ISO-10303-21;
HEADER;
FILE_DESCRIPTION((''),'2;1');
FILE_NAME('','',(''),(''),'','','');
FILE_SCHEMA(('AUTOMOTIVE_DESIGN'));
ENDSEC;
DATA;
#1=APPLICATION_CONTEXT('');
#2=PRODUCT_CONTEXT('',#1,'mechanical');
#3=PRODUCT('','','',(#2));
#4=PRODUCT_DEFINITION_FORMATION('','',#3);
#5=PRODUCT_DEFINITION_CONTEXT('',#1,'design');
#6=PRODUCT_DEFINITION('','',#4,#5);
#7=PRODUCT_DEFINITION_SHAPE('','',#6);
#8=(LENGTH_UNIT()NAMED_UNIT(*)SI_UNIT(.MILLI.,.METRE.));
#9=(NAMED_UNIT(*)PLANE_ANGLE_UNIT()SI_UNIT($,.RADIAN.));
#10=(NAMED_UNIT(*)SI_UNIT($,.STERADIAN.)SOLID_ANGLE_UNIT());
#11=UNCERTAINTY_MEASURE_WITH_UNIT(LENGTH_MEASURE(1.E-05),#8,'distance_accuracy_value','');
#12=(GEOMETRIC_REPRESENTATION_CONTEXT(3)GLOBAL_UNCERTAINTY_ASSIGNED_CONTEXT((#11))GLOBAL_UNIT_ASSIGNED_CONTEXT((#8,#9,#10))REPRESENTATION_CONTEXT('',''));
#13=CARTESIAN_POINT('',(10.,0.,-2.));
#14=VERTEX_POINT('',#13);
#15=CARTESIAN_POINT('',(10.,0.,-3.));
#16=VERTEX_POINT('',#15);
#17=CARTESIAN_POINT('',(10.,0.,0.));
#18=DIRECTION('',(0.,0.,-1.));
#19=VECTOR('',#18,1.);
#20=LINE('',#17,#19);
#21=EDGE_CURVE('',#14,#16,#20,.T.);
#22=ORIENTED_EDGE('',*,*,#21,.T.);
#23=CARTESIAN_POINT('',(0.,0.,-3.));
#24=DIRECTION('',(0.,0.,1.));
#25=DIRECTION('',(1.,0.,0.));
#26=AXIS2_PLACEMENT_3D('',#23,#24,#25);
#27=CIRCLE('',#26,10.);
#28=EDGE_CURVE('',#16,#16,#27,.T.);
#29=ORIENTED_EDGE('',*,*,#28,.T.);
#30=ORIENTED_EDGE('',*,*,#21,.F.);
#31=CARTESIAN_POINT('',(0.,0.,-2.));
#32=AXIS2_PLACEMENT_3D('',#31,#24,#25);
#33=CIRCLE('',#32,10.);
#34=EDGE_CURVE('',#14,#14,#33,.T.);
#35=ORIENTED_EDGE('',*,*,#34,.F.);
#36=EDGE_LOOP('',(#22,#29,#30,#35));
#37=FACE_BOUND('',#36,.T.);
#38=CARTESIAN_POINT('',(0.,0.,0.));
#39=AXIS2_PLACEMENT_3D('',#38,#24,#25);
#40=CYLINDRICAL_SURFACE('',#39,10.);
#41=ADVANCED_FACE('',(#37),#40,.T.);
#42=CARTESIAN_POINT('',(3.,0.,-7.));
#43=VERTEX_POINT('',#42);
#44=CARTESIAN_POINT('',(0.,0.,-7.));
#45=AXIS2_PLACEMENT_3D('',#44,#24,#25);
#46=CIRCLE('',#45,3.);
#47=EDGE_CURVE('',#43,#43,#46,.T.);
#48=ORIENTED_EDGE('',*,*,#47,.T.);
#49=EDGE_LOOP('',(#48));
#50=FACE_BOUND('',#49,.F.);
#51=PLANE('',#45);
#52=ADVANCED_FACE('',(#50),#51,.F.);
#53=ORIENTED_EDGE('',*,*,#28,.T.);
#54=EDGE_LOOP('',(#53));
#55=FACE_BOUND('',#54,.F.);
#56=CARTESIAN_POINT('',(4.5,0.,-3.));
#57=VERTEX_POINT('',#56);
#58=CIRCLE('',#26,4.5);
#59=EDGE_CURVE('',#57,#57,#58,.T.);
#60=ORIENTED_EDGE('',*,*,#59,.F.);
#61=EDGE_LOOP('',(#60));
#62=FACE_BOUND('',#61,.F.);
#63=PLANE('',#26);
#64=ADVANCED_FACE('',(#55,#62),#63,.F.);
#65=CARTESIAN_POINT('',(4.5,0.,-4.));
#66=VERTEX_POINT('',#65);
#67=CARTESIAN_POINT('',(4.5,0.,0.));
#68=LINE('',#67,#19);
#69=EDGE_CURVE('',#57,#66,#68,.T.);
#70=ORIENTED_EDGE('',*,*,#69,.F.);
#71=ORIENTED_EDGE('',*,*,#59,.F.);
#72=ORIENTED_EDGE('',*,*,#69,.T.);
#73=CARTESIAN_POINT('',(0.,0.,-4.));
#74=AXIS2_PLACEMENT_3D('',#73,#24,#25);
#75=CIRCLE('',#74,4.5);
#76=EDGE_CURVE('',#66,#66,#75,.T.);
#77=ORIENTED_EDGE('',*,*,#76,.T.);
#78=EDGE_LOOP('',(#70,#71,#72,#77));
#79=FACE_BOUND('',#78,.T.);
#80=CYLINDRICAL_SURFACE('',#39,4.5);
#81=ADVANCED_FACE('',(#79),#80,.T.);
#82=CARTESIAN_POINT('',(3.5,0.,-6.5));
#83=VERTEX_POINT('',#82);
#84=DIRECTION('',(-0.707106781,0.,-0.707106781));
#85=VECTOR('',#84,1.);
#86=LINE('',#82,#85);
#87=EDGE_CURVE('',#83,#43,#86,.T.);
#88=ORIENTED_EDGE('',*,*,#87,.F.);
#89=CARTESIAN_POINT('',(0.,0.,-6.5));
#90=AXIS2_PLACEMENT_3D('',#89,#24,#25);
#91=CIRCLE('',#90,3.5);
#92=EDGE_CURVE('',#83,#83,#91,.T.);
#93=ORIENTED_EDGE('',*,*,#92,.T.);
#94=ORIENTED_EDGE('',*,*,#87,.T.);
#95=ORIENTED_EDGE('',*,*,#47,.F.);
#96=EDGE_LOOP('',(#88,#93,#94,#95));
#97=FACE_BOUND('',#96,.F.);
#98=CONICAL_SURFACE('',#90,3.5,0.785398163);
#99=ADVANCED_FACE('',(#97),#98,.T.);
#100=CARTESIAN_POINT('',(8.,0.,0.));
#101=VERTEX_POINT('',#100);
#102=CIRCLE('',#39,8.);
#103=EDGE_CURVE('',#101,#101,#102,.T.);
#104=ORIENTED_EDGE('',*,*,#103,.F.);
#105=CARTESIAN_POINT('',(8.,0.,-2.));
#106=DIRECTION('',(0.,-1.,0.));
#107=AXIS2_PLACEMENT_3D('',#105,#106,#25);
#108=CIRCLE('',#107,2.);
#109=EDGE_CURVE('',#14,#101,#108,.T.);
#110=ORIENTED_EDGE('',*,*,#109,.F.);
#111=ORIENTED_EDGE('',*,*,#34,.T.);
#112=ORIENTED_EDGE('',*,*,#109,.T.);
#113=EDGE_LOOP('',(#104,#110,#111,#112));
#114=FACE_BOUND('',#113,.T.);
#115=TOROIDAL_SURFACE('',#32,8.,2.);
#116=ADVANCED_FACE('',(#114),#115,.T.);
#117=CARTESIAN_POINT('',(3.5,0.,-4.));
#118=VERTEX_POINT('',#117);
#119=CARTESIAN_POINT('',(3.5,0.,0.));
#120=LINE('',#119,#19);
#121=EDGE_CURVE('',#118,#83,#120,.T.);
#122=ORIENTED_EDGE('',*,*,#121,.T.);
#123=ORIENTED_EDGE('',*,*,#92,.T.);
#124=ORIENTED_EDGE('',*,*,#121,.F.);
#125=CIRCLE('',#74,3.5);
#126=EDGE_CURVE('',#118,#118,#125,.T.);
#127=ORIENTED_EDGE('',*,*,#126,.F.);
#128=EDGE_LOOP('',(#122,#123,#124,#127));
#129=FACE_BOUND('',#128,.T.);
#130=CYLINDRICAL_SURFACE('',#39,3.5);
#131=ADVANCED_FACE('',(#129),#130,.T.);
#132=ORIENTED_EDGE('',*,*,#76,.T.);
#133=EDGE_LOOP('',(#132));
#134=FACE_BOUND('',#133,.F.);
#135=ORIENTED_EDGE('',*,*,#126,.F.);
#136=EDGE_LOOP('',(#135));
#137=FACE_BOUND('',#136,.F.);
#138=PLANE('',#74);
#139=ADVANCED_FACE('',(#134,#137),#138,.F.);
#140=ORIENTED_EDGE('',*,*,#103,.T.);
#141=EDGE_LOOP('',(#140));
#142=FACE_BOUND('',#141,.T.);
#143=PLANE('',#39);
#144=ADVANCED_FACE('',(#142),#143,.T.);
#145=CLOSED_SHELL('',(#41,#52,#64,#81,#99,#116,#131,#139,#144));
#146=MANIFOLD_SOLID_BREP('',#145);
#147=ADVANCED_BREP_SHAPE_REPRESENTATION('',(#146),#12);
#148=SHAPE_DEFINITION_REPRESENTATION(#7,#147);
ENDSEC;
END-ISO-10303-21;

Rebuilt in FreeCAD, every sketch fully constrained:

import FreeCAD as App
import Part
import Sketcher
Q = App.Units.Quantity


def edges_at(feature, points):
    """Names of the edges that pass closest to the given points."""
    edges = feature.Shape.Edges
    near = lambda p: min(range(len(edges)), key=lambda i: edges[i].distToShape(Part.Vertex(*p))[0])
    return sorted({f"Edge{near(p) + 1}" for p in points})

doc = App.newDocument("Part")
body = doc.addObject("PartDesign::Body", "Body")

# Sketch on XY plane
sketch1 = doc.addObject("Sketcher::SketchObject", "Sketch")
body.addObject(sketch1)
sketch1.AttachmentSupport = (doc.XY_Plane, [""])
sketch1.MapMode = "FlatFace"
sketch1.addGeometry(Part.Circle(App.Vector(0, 0, 0), App.Vector(0, 0, 1), 3.5), False)
sketch1.addConstraint([
    Sketcher.Constraint("Coincident", 0, 3, -1, 1),
    Sketcher.Constraint("Diameter", 0, Q("7 mm")),
])
pad1 = doc.addObject("PartDesign::Pad", "Pad")
body.addObject(pad1)
pad1.Profile = sketch1
pad1.Length = 7
pad1.Reversed = True

# Sketch on XY plane
sketch2 = doc.addObject("Sketcher::SketchObject", "Sketch001")
body.addObject(sketch2)
sketch2.AttachmentSupport = (doc.XY_Plane, [""])
sketch2.MapMode = "FlatFace"
sketch2.addGeometry([
    Part.Circle(App.Vector(0, 0, 0), App.Vector(0, 0, 1), 4.5),
    Part.Circle(App.Vector(0, 0, 0), App.Vector(0, 0, 1), 3.5),
], False)
sketch2.addConstraint([
    Sketcher.Constraint("Coincident", 0, 3, -1, 1),
    Sketcher.Constraint("Coincident", 1, 3, -1, 1),
    Sketcher.Constraint("Diameter", 0, Q("9 mm")),
    Sketcher.Constraint("Diameter", 1, Q("7 mm")),
])
pad2 = doc.addObject("PartDesign::Pad", "Pad001")
body.addObject(pad2)
pad2.Profile = sketch2
pad2.Length = 4
pad2.Reversed = True

# Sketch on XY plane
sketch3 = doc.addObject("Sketcher::SketchObject", "Sketch002")
body.addObject(sketch3)
sketch3.AttachmentSupport = (doc.XY_Plane, [""])
sketch3.MapMode = "FlatFace"
sketch3.addGeometry([
    Part.Circle(App.Vector(0, 0, 0), App.Vector(0, 0, 1), 10),
    Part.Circle(App.Vector(0, 0, 0), App.Vector(0, 0, 1), 4.5),
], False)
sketch3.addConstraint([
    Sketcher.Constraint("Coincident", 0, 3, -1, 1),
    Sketcher.Constraint("Coincident", 1, 3, -1, 1),
    Sketcher.Constraint("Diameter", 0, Q("20 mm")),
    Sketcher.Constraint("Diameter", 1, Q("9 mm")),
])
pad3 = doc.addObject("PartDesign::Pad", "Pad002")
body.addObject(pad3)
pad3.Profile = sketch3
pad3.Length = 3
pad3.Reversed = True
doc.recompute()

fillet = doc.addObject("PartDesign::Fillet", "Fillet")
body.addObject(fillet)
fillet.Base = (pad3, edges_at(pad3, [(-10, 0, 0)]))
fillet.Radius = 2
doc.recompute()

chamfer = doc.addObject("PartDesign::Chamfer", "Chamfer")
body.addObject(chamfer)
chamfer.Base = (fillet, edges_at(fillet, [(-3.5, 0, -7)]))
chamfer.Size = 0.5

doc.recompute()
